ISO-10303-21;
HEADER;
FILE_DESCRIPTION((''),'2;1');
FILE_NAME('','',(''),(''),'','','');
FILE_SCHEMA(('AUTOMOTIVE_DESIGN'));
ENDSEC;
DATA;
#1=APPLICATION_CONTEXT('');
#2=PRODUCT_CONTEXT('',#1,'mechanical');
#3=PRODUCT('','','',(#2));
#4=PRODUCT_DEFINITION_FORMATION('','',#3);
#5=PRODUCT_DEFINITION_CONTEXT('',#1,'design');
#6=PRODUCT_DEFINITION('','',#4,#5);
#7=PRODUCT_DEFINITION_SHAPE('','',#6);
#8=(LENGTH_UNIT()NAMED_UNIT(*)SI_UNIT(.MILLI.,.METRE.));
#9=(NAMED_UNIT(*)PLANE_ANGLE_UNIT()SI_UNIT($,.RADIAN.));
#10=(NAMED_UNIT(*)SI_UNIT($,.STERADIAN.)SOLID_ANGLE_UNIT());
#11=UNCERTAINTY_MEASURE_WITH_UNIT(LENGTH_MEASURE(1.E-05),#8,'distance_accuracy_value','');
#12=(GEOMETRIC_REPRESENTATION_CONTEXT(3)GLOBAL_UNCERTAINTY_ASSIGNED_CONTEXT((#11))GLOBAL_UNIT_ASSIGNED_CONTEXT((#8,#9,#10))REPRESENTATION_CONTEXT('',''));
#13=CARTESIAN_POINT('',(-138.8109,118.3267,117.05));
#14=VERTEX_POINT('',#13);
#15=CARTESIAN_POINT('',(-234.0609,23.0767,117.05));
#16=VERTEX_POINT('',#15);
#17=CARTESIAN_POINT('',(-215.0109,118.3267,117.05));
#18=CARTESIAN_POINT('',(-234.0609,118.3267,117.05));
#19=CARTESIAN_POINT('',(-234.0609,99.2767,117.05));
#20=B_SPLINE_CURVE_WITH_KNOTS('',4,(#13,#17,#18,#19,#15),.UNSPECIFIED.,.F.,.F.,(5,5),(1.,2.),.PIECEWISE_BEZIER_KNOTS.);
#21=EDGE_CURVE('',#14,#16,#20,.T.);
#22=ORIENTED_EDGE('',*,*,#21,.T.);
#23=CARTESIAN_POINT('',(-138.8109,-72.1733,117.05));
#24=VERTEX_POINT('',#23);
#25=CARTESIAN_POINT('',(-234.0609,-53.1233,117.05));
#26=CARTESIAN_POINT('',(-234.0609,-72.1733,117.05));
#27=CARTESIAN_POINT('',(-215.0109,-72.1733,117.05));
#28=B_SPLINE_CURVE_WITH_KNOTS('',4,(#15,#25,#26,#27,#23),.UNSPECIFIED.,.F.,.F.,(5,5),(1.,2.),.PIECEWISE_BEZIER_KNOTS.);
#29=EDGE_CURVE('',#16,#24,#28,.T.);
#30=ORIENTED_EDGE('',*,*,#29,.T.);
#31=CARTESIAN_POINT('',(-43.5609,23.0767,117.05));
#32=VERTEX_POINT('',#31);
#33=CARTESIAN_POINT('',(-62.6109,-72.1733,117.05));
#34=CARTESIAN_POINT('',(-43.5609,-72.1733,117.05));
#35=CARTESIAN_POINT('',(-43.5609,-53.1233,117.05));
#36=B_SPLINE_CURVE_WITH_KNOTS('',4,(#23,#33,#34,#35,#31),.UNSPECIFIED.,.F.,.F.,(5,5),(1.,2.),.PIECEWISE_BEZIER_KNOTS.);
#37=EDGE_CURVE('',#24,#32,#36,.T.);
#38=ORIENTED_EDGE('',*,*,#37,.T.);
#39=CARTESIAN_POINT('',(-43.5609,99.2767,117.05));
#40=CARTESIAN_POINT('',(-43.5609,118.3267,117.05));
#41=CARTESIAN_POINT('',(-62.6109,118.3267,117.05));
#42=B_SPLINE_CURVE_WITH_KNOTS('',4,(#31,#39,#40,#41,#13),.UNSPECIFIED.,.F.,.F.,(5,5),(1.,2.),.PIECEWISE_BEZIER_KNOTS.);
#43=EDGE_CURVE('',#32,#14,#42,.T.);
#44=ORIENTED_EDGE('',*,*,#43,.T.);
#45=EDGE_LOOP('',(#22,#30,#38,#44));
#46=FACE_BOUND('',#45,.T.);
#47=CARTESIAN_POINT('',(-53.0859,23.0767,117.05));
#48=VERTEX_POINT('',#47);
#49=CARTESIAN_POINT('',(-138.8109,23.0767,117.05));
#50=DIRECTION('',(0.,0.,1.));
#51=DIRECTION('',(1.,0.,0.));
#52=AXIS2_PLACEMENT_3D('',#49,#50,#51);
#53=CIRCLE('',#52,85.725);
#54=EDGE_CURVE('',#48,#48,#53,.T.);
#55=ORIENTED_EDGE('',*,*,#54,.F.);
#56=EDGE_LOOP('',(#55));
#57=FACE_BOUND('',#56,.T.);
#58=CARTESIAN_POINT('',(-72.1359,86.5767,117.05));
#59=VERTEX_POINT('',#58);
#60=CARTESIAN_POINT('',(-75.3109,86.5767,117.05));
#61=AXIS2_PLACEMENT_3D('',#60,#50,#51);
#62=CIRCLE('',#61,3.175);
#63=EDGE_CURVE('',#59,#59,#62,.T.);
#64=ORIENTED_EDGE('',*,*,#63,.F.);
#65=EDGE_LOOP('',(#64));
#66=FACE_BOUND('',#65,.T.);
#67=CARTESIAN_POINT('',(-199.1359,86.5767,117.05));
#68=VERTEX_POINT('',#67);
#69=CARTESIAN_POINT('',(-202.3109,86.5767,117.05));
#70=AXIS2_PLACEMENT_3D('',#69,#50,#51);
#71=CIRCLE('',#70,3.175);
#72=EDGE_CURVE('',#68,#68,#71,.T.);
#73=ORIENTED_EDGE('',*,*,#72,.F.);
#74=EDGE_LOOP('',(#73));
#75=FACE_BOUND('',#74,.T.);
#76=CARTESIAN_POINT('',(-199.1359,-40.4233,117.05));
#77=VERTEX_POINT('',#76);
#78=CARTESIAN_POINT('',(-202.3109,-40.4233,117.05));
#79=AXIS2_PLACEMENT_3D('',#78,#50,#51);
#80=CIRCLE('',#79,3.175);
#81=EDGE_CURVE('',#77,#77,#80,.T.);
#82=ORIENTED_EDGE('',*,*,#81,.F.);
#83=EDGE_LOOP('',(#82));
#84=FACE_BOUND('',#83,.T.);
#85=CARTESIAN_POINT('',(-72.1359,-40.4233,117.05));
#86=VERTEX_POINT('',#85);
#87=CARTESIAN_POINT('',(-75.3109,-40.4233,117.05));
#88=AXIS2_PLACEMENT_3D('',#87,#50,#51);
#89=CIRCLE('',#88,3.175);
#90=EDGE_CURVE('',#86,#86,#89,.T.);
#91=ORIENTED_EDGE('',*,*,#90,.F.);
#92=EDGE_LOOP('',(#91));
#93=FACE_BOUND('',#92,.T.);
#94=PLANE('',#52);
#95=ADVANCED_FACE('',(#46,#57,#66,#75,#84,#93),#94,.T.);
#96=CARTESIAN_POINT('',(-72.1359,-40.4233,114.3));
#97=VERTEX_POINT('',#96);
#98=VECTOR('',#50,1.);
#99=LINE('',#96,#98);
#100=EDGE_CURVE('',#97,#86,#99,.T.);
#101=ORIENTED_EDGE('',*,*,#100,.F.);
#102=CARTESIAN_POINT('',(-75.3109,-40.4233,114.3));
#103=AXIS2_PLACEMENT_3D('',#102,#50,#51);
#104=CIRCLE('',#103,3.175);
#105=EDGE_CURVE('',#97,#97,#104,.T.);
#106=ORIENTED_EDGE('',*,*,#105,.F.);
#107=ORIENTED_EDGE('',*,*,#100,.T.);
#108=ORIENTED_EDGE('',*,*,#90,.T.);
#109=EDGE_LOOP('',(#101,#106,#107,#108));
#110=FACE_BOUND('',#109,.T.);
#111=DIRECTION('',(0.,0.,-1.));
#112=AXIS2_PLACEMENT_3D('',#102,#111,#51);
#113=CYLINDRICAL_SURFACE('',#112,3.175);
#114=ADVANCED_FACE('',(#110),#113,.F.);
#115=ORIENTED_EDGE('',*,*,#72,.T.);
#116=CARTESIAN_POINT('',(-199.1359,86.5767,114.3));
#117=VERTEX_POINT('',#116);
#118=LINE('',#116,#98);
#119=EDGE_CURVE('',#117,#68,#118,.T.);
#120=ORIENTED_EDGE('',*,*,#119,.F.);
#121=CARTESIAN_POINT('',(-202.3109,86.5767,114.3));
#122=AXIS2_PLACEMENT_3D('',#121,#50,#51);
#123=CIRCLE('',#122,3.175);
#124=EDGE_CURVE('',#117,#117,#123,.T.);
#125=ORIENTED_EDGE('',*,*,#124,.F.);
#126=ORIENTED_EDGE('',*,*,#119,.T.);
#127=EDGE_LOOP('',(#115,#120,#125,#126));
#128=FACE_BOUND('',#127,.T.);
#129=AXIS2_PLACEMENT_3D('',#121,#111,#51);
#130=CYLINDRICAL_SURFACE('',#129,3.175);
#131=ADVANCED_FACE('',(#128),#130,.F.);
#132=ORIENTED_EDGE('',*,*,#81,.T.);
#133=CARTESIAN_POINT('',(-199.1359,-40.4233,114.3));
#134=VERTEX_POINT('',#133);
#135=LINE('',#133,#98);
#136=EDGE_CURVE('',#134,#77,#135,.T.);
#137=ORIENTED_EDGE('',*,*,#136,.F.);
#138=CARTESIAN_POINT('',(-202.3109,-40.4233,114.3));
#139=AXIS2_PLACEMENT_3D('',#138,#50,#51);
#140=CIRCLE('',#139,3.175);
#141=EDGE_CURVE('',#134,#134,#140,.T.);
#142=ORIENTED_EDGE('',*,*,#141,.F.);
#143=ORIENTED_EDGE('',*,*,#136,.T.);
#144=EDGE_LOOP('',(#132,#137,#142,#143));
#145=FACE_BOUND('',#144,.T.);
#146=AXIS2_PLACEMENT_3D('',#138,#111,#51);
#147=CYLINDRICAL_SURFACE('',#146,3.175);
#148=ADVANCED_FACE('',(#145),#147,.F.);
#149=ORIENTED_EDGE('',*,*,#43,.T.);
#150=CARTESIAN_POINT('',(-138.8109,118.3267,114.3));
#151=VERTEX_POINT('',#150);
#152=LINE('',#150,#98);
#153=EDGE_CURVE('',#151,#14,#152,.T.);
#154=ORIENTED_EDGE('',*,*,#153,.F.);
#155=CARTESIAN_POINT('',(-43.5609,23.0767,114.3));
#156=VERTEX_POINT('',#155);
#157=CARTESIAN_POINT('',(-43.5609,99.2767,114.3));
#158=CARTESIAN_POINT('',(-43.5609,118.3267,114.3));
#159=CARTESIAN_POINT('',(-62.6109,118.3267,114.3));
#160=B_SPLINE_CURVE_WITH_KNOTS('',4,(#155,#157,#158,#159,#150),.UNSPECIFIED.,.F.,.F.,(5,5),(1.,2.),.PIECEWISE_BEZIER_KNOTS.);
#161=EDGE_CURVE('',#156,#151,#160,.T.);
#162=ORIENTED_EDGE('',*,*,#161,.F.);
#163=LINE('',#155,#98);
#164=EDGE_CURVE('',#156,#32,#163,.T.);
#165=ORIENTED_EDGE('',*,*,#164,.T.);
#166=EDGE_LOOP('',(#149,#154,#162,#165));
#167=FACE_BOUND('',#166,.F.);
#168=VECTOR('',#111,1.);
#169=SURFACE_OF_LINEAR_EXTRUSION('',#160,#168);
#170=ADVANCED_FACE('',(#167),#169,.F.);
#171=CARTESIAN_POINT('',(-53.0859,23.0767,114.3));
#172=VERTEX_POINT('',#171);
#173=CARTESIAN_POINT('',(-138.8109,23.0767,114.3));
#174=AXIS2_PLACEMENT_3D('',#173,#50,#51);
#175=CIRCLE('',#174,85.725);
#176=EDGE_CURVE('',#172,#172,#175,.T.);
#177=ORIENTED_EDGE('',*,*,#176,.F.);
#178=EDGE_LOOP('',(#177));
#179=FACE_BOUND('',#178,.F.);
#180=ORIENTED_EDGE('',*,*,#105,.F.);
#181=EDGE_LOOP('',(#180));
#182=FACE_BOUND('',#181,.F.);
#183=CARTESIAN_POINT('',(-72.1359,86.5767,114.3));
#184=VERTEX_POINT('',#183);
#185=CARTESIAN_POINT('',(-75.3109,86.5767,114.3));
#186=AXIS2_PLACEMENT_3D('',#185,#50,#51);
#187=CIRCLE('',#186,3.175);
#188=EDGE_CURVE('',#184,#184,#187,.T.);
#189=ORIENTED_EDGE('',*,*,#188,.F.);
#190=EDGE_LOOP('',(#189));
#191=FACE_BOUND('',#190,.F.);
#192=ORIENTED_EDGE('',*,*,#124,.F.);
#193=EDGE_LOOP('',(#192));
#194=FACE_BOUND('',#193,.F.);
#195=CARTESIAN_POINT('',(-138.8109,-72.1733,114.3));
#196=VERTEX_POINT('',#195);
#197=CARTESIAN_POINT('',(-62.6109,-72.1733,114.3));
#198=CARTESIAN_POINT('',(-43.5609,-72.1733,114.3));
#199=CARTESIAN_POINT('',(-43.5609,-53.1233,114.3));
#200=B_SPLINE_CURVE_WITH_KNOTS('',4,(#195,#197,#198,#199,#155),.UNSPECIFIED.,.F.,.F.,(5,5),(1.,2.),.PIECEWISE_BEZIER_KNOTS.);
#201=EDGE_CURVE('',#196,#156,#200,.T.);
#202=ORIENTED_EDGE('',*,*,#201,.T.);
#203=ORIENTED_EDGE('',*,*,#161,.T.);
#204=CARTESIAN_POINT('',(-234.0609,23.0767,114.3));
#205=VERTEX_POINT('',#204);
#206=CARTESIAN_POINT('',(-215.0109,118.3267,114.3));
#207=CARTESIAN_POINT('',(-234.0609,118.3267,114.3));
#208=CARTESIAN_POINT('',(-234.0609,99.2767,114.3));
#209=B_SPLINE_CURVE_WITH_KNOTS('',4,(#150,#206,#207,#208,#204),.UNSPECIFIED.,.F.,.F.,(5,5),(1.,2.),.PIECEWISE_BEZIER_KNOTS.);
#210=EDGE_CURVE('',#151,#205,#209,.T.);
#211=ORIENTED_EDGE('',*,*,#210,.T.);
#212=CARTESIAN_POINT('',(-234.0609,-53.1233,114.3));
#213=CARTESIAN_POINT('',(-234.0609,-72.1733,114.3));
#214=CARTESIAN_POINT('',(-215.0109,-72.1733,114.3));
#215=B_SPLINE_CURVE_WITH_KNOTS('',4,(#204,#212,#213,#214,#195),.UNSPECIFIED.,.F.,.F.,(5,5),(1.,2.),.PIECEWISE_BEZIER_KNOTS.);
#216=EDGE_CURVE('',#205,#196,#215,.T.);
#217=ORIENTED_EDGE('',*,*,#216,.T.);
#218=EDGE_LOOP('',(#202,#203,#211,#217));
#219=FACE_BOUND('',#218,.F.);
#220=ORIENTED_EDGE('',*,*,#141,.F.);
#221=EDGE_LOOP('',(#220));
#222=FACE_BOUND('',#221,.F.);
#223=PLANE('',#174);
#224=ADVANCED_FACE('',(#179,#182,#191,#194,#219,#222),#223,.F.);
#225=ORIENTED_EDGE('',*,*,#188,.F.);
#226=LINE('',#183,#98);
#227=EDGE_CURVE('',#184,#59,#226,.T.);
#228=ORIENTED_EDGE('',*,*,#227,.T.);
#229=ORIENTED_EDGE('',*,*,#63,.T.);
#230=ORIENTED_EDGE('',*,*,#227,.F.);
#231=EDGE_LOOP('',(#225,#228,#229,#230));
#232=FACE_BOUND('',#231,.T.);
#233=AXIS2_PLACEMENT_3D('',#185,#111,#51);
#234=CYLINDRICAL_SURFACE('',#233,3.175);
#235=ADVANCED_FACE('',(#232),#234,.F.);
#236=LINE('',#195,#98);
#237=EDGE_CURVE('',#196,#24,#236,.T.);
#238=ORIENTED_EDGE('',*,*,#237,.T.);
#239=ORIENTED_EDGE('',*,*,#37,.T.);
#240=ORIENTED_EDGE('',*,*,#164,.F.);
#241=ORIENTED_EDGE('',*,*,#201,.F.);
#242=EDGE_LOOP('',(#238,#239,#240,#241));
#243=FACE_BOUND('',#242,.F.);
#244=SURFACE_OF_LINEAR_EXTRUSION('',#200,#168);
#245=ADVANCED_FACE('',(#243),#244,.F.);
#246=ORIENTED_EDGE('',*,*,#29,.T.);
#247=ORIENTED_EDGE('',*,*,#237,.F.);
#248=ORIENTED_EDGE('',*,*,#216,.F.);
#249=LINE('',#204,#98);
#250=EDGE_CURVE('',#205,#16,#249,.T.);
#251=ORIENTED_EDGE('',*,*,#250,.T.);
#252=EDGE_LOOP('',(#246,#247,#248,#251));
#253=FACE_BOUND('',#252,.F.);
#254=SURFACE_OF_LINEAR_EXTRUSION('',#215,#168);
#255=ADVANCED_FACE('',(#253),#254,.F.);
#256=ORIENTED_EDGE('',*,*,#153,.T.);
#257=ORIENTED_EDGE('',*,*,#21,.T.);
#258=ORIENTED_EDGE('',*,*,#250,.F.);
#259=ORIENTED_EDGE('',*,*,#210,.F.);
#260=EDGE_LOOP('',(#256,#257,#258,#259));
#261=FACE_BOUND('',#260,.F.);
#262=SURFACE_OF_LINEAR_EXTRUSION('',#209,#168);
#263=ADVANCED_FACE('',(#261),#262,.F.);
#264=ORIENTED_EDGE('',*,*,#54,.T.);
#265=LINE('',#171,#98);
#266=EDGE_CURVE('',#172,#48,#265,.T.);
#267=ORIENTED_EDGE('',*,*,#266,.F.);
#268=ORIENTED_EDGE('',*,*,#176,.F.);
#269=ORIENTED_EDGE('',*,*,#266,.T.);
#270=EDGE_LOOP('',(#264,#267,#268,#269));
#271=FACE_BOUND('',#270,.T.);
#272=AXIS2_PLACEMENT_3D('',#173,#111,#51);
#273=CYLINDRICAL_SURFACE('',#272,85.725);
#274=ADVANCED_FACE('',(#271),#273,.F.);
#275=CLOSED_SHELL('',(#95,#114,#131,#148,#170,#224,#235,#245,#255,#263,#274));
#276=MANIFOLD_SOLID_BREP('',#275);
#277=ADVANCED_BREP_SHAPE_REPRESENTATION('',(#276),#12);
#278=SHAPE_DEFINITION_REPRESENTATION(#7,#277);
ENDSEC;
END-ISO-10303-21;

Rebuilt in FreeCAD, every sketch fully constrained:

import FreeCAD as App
import Part
import Sketcher
Q = App.Units.Quantity

doc = App.newDocument("Part")
body = doc.addObject("PartDesign::Body", "Body")

# Sketch on XY plane
sketch1 = body.newObject("Sketcher::SketchObject", "Sketch")
sketch1.AttachmentSupport = (doc.getObject("XY_Plane"), [""])
sketch1.MapMode = "FlatFace"
sketch1.AttachmentOffset = App.Placement(App.Vector(0, 0, 4.5 * 25.4), App.Rotation())
sketch1.addGeometry(Part.BSplineCurve([App.Vector(-43.5609, 23.0767, 0), App.Vector(-43.5609, 99.2767, 0), App.Vector(-43.5609, 118.3267, 0), App.Vector(-62.6109, 118.3267, 0), App.Vector(-138.8109, 118.3267, 0)], [5, 5], [1, 2], False, 4, [1, 1, 1, 1, 1], False), False)
sketch1.addGeometry(Part.BSplineCurve([App.Vector(-138.8109, 118.3267, 0), App.Vector(-215.0109, 118.3267, 0), App.Vector(-234.0609, 118.3267, 0), App.Vector(-234.0609, 99.2767, 0), App.Vector(-234.0609, 23.0767, 0)], [5, 5], [1, 2], False, 4, [1, 1, 1, 1, 1], False), False)
sketch1.addGeometry(Part.BSplineCurve([App.Vector(-234.0609, 23.0767, 0), App.Vector(-234.0609, -53.1233, 0), App.Vector(-234.0609, -72.1733, 0), App.Vector(-215.0109, -72.1733, 0), App.Vector(-138.8109, -72.1733, 0)], [5, 5], [1, 2], False, 4, [1, 1, 1, 1, 1], False), False)
sketch1.addGeometry(Part.BSplineCurve([App.Vector(-138.8109, -72.1733, 0), App.Vector(-62.6109, -72.1733, 0), App.Vector(-43.5609, -72.1733, 0), App.Vector(-43.5609, -53.1233, 0), App.Vector(-43.5609, 23.0767, 0)], [5, 5], [1, 2], False, 4, [1, 1, 1, 1, 1], False), False)
sketch1.addGeometry(Part.Circle(App.Vector(-202.3109, -40.4233, 0), App.Vector(0, 0, 1), 3.175), False)
sketch1.addGeometry(Part.Circle(App.Vector(-75.3109, -40.4233, 0), App.Vector(0, 0, 1), 3.175), False)
sketch1.addGeometry(Part.Circle(App.Vector(-202.3109, 86.5767, 0), App.Vector(0, 0, 1), 3.175), False)
sketch1.addGeometry(Part.Circle(App.Vector(-138.8109, 23.0767, 0), App.Vector(0, 0, 1), 85.725), False)
sketch1.addGeometry(Part.Circle(App.Vector(-75.3109, 86.5767, 0), App.Vector(0, 0, 1), 3.175), False)
sketch1.addConstraint(Sketcher.Constraint("Block", 0))
sketch1.addConstraint(Sketcher.Constraint("Block", 1))
sketch1.addConstraint(Sketcher.Constraint("Block", 2))
sketch1.addConstraint(Sketcher.Constraint("Block", 3))
sketch1.addConstraint(Sketcher.Constraint("Equal", 4, 5))
sketch1.addConstraint(Sketcher.Constraint("Equal", 5, 6))
sketch1.addConstraint(Sketcher.Constraint("Equal", 6, 8))
sketch1.addConstraint(Sketcher.Constraint("Horizontal", 4, 3, 5, 3))
sketch1.addConstraint(Sketcher.Constraint("Horizontal", 6, 3, 8, 3))
sketch1.addConstraint(Sketcher.Constraint("Vertical", 4, 3, 6, 3))
sketch1.addConstraint(Sketcher.Constraint("Vertical", 5, 3, 8, 3))
sketch1.addConstraint(Sketcher.Constraint("Diameter", 4, Q("0.25 in")))
sketch1.addConstraint(Sketcher.Constraint("Diameter", 7, Q("6.75 in")))
sketch1.addConstraint(Sketcher.Constraint("DistanceX", 4, 3, 5, 3, Q("5 in")))
sketch1.addConstraint(Sketcher.Constraint("DistanceY", 4, 3, 6, 3, Q("5 in")))
sketch1.addConstraint(Sketcher.Constraint("DistanceX", 4, 3, 7, 3, Q("2.5 in")))
sketch1.addConstraint(Sketcher.Constraint("DistanceY", 4, 3, 7, 3, Q("2.5 in")))
sketch1.addConstraint(Sketcher.Constraint("DistanceX", 4, 3, -1, 1, Q("7.965 in")))
sketch1.addConstraint(Sketcher.Constraint("DistanceY", 4, 3, -1, 1, 40.4233))
pad1 = body.newObject("PartDesign::Pad", "Pad")
pad1.Profile = sketch1
pad1.Length = 2.75

doc.recompute()
